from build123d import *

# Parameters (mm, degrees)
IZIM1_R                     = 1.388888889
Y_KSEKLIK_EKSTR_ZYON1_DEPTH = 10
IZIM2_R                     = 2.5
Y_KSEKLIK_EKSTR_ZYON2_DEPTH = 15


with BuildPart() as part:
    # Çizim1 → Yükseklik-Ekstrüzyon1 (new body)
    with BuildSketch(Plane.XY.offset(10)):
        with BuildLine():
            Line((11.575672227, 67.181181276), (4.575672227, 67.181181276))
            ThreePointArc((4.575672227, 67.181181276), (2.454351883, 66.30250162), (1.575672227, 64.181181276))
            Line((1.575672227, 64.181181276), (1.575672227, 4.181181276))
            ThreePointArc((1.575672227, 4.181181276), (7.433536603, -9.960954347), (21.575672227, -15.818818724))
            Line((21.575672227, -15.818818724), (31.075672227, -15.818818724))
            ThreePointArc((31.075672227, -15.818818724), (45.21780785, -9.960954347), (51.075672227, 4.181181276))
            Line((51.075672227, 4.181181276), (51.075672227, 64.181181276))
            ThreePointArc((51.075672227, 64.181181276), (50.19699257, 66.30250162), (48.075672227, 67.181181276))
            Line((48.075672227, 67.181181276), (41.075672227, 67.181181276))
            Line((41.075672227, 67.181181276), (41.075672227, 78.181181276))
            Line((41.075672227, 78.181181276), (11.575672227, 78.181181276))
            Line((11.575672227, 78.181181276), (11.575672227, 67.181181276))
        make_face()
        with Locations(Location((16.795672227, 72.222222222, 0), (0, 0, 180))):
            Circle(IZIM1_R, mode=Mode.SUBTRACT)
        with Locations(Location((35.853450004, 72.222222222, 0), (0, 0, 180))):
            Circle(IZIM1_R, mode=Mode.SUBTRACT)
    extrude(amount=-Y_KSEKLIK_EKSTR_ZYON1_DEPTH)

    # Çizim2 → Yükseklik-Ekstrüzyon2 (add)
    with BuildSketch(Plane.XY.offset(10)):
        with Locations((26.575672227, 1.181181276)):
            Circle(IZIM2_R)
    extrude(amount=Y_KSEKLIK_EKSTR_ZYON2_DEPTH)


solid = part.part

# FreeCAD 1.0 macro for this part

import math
import FreeCAD as App
import Part
import Sketcher
from FreeCAD import Vector

doc = App.newDocument("Part")
body = doc.addObject("PartDesign::Body", "Body")

# Sketch on XY plane
sketch1 = doc.addObject("Sketcher::SketchObject", "Sketch")
body.addObject(sketch1)
sketch1.AttachmentSupport = (doc.XY_Plane, [""])
sketch1.MapMode = "FlatFace"
sketch1.AttachmentOffset = App.Placement(Vector(0, 0, 10), App.Rotation())
sketch1.addGeometry(Part.LineSegment(Vector(11.575672, 67.181181, 0), Vector(4.575672, 67.181181, 0)), False)
sketch1.addGeometry(Part.ArcOfCircle(Part.Circle(Vector(4.575672, 64.181181, 0), Vector(0, 0, 1), 3), math.radians(90), math.radians(180)), False)
sketch1.addGeometry(Part.LineSegment(Vector(1.575672, 64.181181, 0), Vector(1.575672, 4.181181, 0)), False)
sketch1.addGeometry(Part.ArcOfCircle(Part.Circle(Vector(21.575672, 4.181181, 0), Vector(0, 0, 1), 20), math.radians(-180), math.radians(-90)), False)
sketch1.addGeometry(Part.LineSegment(Vector(21.575672, -15.818819, 0), Vector(31.075672, -15.818819, 0)), False)
sketch1.addGeometry(Part.ArcOfCircle(Part.Circle(Vector(31.075672, 4.181181, 0), Vector(0, 0, 1), 20), math.radians(-90), math.radians(0)), False)
sketch1.addGeometry(Part.LineSegment(Vector(51.075672, 4.181181, 0), Vector(51.075672, 64.181181, 0)), False)
sketch1.addGeometry(Part.ArcOfCircle(Part.Circle(Vector(48.075672, 64.181181, 0), Vector(0, 0, 1), 3), math.radians(0), math.radians(90)), False)
sketch1.addGeometry(Part.LineSegment(Vector(48.075672, 67.181181, 0), Vector(41.075672, 67.181181, 0)), False)
sketch1.addGeometry(Part.LineSegment(Vector(41.075672, 67.181181, 0), Vector(41.075672, 78.181181, 0)), False)
sketch1.addGeometry(Part.LineSegment(Vector(41.075672, 78.181181, 0), Vector(11.575672, 78.181181, 0)), False)
sketch1.addGeometry(Part.LineSegment(Vector(11.575672, 78.181181, 0), Vector(11.575672, 67.181181, 0)), False)
sketch1.addGeometry(Part.Circle(Vector(16.795672, 72.222222, 0), Vector(0, 0, 1), 1.388889), False)
sketch1.addGeometry(Part.Circle(Vector(35.85345, 72.222222, 0), Vector(0, 0, 1), 1.388889), False)
sketch1.addConstraint(Sketcher.Constraint("Tangent", 0, 2, 1, 1))
sketch1.addConstraint(Sketcher.Constraint("Tangent", 1, 2, 2, 1))
sketch1.addConstraint(Sketcher.Constraint("Tangent", 2, 2, 3, 1))
sketch1.addConstraint(Sketcher.Constraint("Tangent", 3, 2, 4, 1))
sketch1.addConstraint(Sketcher.Constraint("Tangent", 4, 2, 5, 1))
sketch1.addConstraint(Sketcher.Constraint("Tangent", 5, 2, 6, 1))
sketch1.addConstraint(Sketcher.Constraint("Tangent", 6, 2, 7, 1))
sketch1.addConstraint(Sketcher.Constraint("Tangent", 7, 2, 8, 1))
sketch1.addConstraint(Sketcher.Constraint("Coincident", 8, 2, 9, 1))
sketch1.addConstraint(Sketcher.Constraint("Coincident", 9, 2, 10, 1))
sketch1.addConstraint(Sketcher.Constraint("Coincident", 10, 2, 11, 1))
sketch1.addConstraint(Sketcher.Constraint("Coincident", 11, 2, 0, 1))
sketch1.addConstraint(Sketcher.Constraint("Horizontal", 0))
sketch1.addConstraint(Sketcher.Constraint("Vertical", 2))
sketch1.addConstraint(Sketcher.Constraint("Horizontal", 4))
sketch1.addConstraint(Sketcher.Constraint("Vertical", 6))
sketch1.addConstraint(Sketcher.Constraint("Horizontal", 8))
sketch1.addConstraint(Sketcher.Constraint("Vertical", 9))
sketch1.addConstraint(Sketcher.Constraint("Horizontal", 10))
sketch1.addConstraint(Sketcher.Constraint("Vertical", 11))
sketch1.addConstraint(Sketcher.Constraint("Equal", 3, 5))
sketch1.addConstraint(Sketcher.Constraint("Equal", 1, 7))
sketch1.addConstraint(Sketcher.Constraint("Equal", 12, 13))
sketch1.addConstraint(Sketcher.Constraint("Horizontal", 1, 3, 7, 3))
sketch1.addConstraint(Sketcher.Constraint("Horizontal", 12, 3, 13, 3))
sketch1.addConstraint(Sketcher.Constraint("Equal", 0, 8))
sketch1.addConstraint(Sketcher.Constraint("Radius", 1, 3.0))
sketch1.addConstraint(Sketcher.Constraint("Radius", 3, 20.0))
sketch1.addConstraint(Sketcher.Constraint("DistanceX", 0, 2, 0, 1, 7.0))
sketch1.addConstraint(Sketcher.Constraint("DistanceY", 2, 2, 2, 1, 60.0))
sketch1.addConstraint(Sketcher.Constraint("DistanceY", 9, 1, 9, 2, 11.0))
sketch1.addConstraint(Sketcher.Constraint("DistanceX", 4, 1, 4, 2, 9.5))
sketch1.addConstraint(Sketcher.Constraint("DistanceX", 1, 3, 12, 3, 12.22))
sketch1.addConstraint(Sketcher.Constraint("Diameter", 12, 2.777778))
sketch1.addConstraint(Sketcher.Constraint("DistanceY", -1, 1, 1, 3, 64.181181))
sketch1.addConstraint(Sketcher.Constraint("DistanceX", -1, 1, 13, 3, 35.85345))
sketch1.addConstraint(Sketcher.Constraint("DistanceY", 1, 3, 12, 3, 8.041041))
sketch1.addConstraint(Sketcher.Constraint("DistanceX", -1, 1, 1, 3, 4.575672))
pad1 = doc.addObject("PartDesign::Pad", "Pad")
body.addObject(pad1)
pad1.Profile = sketch1
pad1.Length = 10
pad1.Reversed = True

# Sketch on XY plane
sketch2 = doc.addObject("Sketcher::SketchObject", "Sketch001")
body.addObject(sketch2)
sketch2.AttachmentSupport = (doc.XY_Plane, [""])
sketch2.MapMode = "FlatFace"
sketch2.AttachmentOffset = App.Placement(Vector(0, 0, 10), App.Rotation())
sketch2.addGeometry(Part.Circle(Vector(26.575672, 1.181181, 0), Vector(0, 0, 1), 2.5), False)
sketch2.addConstraint(Sketcher.Constraint("Diameter", 0, 5.0))
sketch2.addConstraint(Sketcher.Constraint("DistanceY", -1, 1, 0, 3, 1.181181))
sketch2.addConstraint(Sketcher.Constraint("DistanceX", -1, 1, 0, 3, 26.575672))
pad2 = doc.addObject("PartDesign::Pad", "Pad001")
body.addObject(pad2)
pad2.Profile = sketch2
pad2.Length = 15

doc.recompute()
